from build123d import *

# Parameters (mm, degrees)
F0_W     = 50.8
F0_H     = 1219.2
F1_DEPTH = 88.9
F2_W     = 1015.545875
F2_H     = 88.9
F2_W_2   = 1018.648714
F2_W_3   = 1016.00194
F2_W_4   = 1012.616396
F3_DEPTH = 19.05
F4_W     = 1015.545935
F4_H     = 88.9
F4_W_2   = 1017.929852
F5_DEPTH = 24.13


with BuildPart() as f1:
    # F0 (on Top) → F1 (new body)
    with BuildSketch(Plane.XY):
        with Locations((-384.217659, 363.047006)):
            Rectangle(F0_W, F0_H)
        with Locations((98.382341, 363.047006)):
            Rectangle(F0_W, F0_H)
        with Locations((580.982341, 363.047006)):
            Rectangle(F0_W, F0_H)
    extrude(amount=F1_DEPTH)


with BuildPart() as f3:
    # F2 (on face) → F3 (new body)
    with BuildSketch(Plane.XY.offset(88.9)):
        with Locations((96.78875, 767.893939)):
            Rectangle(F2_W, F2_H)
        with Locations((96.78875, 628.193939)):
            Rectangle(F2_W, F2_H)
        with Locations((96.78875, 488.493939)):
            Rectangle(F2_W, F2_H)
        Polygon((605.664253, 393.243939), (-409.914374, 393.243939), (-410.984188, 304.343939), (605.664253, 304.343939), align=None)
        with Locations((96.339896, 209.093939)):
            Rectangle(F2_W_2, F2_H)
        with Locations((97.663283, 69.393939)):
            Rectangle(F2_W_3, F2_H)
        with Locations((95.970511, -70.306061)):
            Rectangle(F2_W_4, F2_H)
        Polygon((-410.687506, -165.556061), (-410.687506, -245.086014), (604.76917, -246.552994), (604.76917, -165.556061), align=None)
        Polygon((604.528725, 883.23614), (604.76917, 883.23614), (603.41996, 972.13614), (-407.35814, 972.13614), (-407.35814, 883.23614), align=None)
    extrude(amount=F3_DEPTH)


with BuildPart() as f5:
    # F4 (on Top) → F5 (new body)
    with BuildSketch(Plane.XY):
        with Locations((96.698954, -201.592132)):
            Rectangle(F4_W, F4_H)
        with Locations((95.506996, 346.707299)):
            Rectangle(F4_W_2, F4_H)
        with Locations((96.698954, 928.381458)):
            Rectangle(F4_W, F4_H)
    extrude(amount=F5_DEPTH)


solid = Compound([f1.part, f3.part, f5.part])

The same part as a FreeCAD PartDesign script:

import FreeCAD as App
import Part
import Sketcher

V = App.Vector
Q = App.Units.Quantity


def add_polygon(sketch, points):
    """Adds a closed chain of lines whose ends are joined by coincident constraints."""
    first, n = sketch.GeometryCount, len(points)
    for a, b in zip(points, points[1:] + points[:1]):
        sketch.addGeometry(Part.LineSegment(App.Vector(*a, 0), App.Vector(*b, 0)), False)
    for i in range(n):
        sketch.addConstraint(Sketcher.Constraint("Coincident", first + i, 2, first + (i + 1) % n, 1))

doc = App.newDocument("Part")
params = doc.addObject("Spreadsheet::Sheet", "Params")
for row, (alias, value) in enumerate([
    ("sketch1_width", "2 in"),
    ("sketch1_height", "48 in"),
    ("pad1_length", "3.5 in"),
    ("sketch2_height", "3.5 in"),
    ("pad2_length", "0.75 in"),
    ("sketch3_height", "3.5 in"),
    ("pad3_length", "0.95 in"),
], start=1):
    params.set(f"A{row}", alias)
    params.set(f"B{row}", "=" + value)
    params.setAlias(f"B{row}", alias)

body = doc.addObject("PartDesign::Body", "Body")
body.AllowCompound = True

sketch1 = doc.addObject("Sketcher::SketchObject", "Sketch")
body.addObject(sketch1)
sketch1.AttachmentSupport = (doc.XY_Plane, [""])
sketch1.MapMode = "FlatFace"
add_polygon(sketch1, [(-409.617659, 972.647006), (-409.617659, -246.552994), (-358.817659, -246.552994), (-358.817659, 972.647006)])
add_polygon(sketch1, [(72.982341, 972.647006), (72.982341, -246.552994), (123.782341, -246.552994), (123.782341, 972.647006)])
add_polygon(sketch1, [(555.582341, 972.647006), (555.582341, -246.552994), (606.382341, -246.552994), (606.382341, 972.647006)])
sketch1.addConstraint([
    Sketcher.Constraint("Vertical", 0),
    Sketcher.Constraint("Horizontal", 1),
    Sketcher.Constraint("Vertical", 2),
    Sketcher.Constraint("Horizontal", 3),
    Sketcher.Constraint("Vertical", 4),
    Sketcher.Constraint("Horizontal", 5),
    Sketcher.Constraint("Vertical", 6),
    Sketcher.Constraint("Horizontal", 7),
    Sketcher.Constraint("Vertical", 8),
    Sketcher.Constraint("Horizontal", 9),
    Sketcher.Constraint("Vertical", 10),
    Sketcher.Constraint("Horizontal", 11),
    Sketcher.Constraint("Horizontal", 1, 2, 4, 2),
    Sketcher.Constraint("Horizontal", 3, 2, 6, 2),
    Sketcher.Constraint("Horizontal", 5, 2, 8, 2),
    Sketcher.Constraint("Horizontal", 7, 2, 10, 2),
    Sketcher.Constraint("Equal", 3, 5),
    Sketcher.Constraint("Equal", 7, 9),
    Sketcher.Constraint("DistanceX", 1, 1, 1, 2, Q("2 in")),
    Sketcher.Constraint("DistanceY", 0, 2, 0, 1, Q("48 in")),
    Sketcher.Constraint("DistanceX", 1, 2, 4, 2, Q("17 in")),
    Sketcher.Constraint("DistanceX", 5, 2, 8, 2, Q("17 in")),
    Sketcher.Constraint("DistanceX", 0, 2, -1, 1, 409.617659),
    Sketcher.Constraint("DistanceY", 0, 2, -1, 1, 246.552994),
])
sketch1.setExpression("Constraints[30]", "Params.sketch1_width")
sketch1.setExpression("Constraints[31]", "Params.sketch1_height")
pad1 = doc.addObject("PartDesign::Pad", "Pad")
body.addObject(pad1)
pad1.Profile = sketch1
pad1.setExpression("Length", "Params.pad1_length")
body2 = doc.addObject("PartDesign::Body", "Body001")
body2.AllowCompound = True

sketch2 = doc.addObject("Sketcher::SketchObject", "Sketch001")
body2.addObject(sketch2)
sketch2.AttachmentSupport = (doc.getObject("XY_Plane001"), [""])
sketch2.MapMode = "FlatFace"
sketch2.AttachmentOffset = App.Placement(V(0, 0, 3.5 * 25.4), App.Rotation())
add_polygon(sketch2, [(-410.984188, 812.343939), (-410.984188, 723.443939), (604.561687, 723.443939), (604.561687, 812.343939)])
add_polygon(sketch2, [(-410.984188, 672.643939), (-410.984188, 583.743939), (604.561687, 583.743939), (604.561687, 672.643939)])
add_polygon(sketch2, [(-410.984188, 532.943939), (-410.984188, 444.043939), (604.561687, 444.043939), (604.561687, 532.943939)])
add_polygon(sketch2, [(605.664253, 393.243939), (-409.914374, 393.243939), (-410.984188, 304.343939), (605.664253, 304.343939)])
add_polygon(sketch2, [(-412.984461, 253.543939), (-412.984461, 164.643939), (605.664253, 164.643939), (605.664253, 253.543939)])
add_polygon(sketch2, [(-410.337687, 113.843939), (-410.337687, 24.943939), (605.664253, 24.943939), (605.664253, 113.843939)])
add_polygon(sketch2, [(-410.337687, -25.856061), (-410.337687, -114.756061), (602.278709, -114.756061), (602.278709, -25.856061)])
add_polygon(sketch2, [(-410.687506, -165.556061), (-410.687506, -245.086014), (604.76917, -246.552994), (604.76917, -165.556061)])
add_polygon(sketch2, [(604.76917, 883.23614), (603.41996, 972.13614), (-407.35814, 972.13614), (-407.35814, 883.23614)])
sketch2.addConstraint([
    Sketcher.Constraint("Vertical", 0),
    Sketcher.Constraint("Horizontal", 1),
    Sketcher.Constraint("Vertical", 2),
    Sketcher.Constraint("Horizontal", 3),
    Sketcher.Constraint("Vertical", 4),
    Sketcher.Constraint("Horizontal", 5),
    Sketcher.Constraint("Vertical", 6),
    Sketcher.Constraint("Horizontal", 7),
    Sketcher.Constraint("Vertical", 8),
    Sketcher.Constraint("Horizontal", 9),
    Sketcher.Constraint("Vertical", 10),
    Sketcher.Constraint("Horizontal", 11),
    Sketcher.Constraint("Horizontal", 12),
    Sketcher.Constraint("Horizontal", 14),
    Sketcher.Constraint("Vertical", 15),
    Sketcher.Constraint("Vertical", 16),
    Sketcher.Constraint("Horizontal", 17),
    Sketcher.Constraint("Vertical", 18),
    Sketcher.Constraint("Horizontal", 19),
    Sketcher.Constraint("Vertical", 20),
    Sketcher.Constraint("Horizontal", 21),
    Sketcher.Constraint("Vertical", 22),
    Sketcher.Constraint("Horizontal", 23),
    Sketcher.Constraint("Vertical", 24),
    Sketcher.Constraint("Horizontal", 25),
    Sketcher.Constraint("Vertical", 26),
    Sketcher.Constraint("Horizontal", 27),
    Sketcher.Constraint("Vertical", 28),
    Sketcher.Constraint("Vertical", 30),
    Sketcher.Constraint("Horizontal", 31),
    Sketcher.Constraint("Horizontal", 33),
    Sketcher.Constraint("Vertical", 34),
    Sketcher.Constraint("Horizontal", 35),
    Sketcher.Constraint("Vertical", 3, 2, 4, 2),
    Sketcher.Constraint("Vertical", 2, 2, 5, 2),
    Sketcher.Constraint("Vertical", 7, 2, 8, 2),
    Sketcher.Constraint("Vertical", 6, 2, 9, 2),
    Sketcher.Constraint("Vertical", 11, 2, 13, 2),
    Sketcher.Constraint("Vertical", 15, 2, 17, 2),
    Sketcher.Constraint("Vertical", 18, 2, 21, 2),
    Sketcher.Constraint("Vertical", 23, 2, 24, 2),
    Sketcher.Constraint("Vertical", 30, 2, 35, 2),
    Sketcher.Constraint("Equal", 2, 4),
    Sketcher.Constraint("Equal", 6, 8),
    Sketcher.Constraint("Equal", 10, 15),
    Sketcher.Constraint("Equal", 15, 16),
    Sketcher.Constraint("Equal", 18, 20),
    Sketcher.Constraint("Equal", 22, 24),
    Sketcher.Constraint("Equal", 26, 34),
    Sketcher.Constraint("DistanceY", 0, 2, 0, 1, Q("3.5 in")),
    Sketcher.Constraint("DistanceY", 4, 2, 3, 2, Q("9 in")),
    Sketcher.Constraint("DistanceY", 8, 2, 7, 2, Q("9 in")),
    Sketcher.Constraint("DistanceY", 12, 2, 8, 2, Q("2 in")),
    Sketcher.Constraint("DistanceY", 16, 2, 12, 2, Q("9 in")),
    Sketcher.Constraint("DistanceY", 20, 2, 19, 2, Q("9 in")),
    Sketcher.Constraint("DistanceY", 24, 2, 23, 2, Q("9 in")),
    Sketcher.Constraint("DistanceY", 30, 2, 25, 2, Q("2 in")),
    Sketcher.Constraint("DistanceX", 33, 2, 33, 1, 1010.7781),
    Sketcher.Constraint("DistanceX", 14, 1, 14, 2, 1016.648441),
    Sketcher.Constraint("DistanceX", 21, 1, 21, 2, 1016.00194),
    Sketcher.Constraint("DistanceX", 35, 1, 35, 2, 1012.12731),
    Sketcher.Constraint("DistanceY", 2, 2, 32, 2, 159.792201),
    Sketcher.Constraint("DistanceX", 1, 1, 1, 2, 1015.545875),
    Sketcher.Constraint("DistanceX", 12, 2, 12, 1, 1015.578627),
    Sketcher.Constraint("DistanceX", 17, 1, 17, 2, 1018.648714),
    Sketcher.Constraint("DistanceX", 25, 1, 25, 2, 1012.616396),
    Sketcher.Constraint("DistanceX", 31, 2, 31, 1, 1015.456676),
    Sketcher.Constraint("DistanceY", 28, 2, 28, 1, 79.529953),
    Sketcher.Constraint("DistanceY", 30, 1, 30, 2, 80.996933),
    Sketcher.Constraint("DistanceY", -1, 1, 0, 2, 723.443939),
    Sketcher.Constraint("DistanceX", 13, 2, -1, 1, 410.984188),
    Sketcher.Constraint("DistanceX", -1, 1, 29, 2, 604.76917),
])
sketch2.setExpression("Constraints[85]", "Params.sketch2_height")
pad2 = doc.addObject("PartDesign::Pad", "Pad001")
body2.addObject(pad2)
pad2.Profile = sketch2
pad2.setExpression("Length", "Params.pad2_length")
body3 = doc.addObject("PartDesign::Body", "Body002")
body3.AllowCompound = True

sketch3 = doc.addObject("Sketcher::SketchObject", "Sketch002")
body3.addObject(sketch3)
sketch3.AttachmentSupport = (doc.getObject("XY_Plane002"), [""])
sketch3.MapMode = "FlatFace"
add_polygon(sketch3, [(-411.074013, -157.142132), (-411.074013, -246.042132), (604.471922, -246.042132), (604.471922, -157.142132)])
add_polygon(sketch3, [(-413.45793, 391.157299), (-413.45793, 302.257299), (604.471922, 302.257299), (604.471922, 391.157299)])
add_polygon(sketch3, [(-411.074013, 972.831458), (-411.074013, 883.931458), (604.471922, 883.931458), (604.471922, 972.831458)])
sketch3.addConstraint([
    Sketcher.Constraint("Vertical", 0),
    Sketcher.Constraint("Horizontal", 1),
    Sketcher.Constraint("Vertical", 2),
    Sketcher.Constraint("Horizontal", 3),
    Sketcher.Constraint("Vertical", 4),
    Sketcher.Constraint("Horizontal", 5),
    Sketcher.Constraint("Vertical", 6),
    Sketcher.Constraint("Horizontal", 7),
    Sketcher.Constraint("Vertical", 8),
    Sketcher.Constraint("Horizontal", 9),
    Sketcher.Constraint("Vertical", 10),
    Sketcher.Constraint("Horizontal", 11),
    Sketcher.Constraint("Vertical", 2, 2, 5, 2),
    Sketcher.Constraint("Vertical", 3, 2, 8, 2),
    Sketcher.Constraint("Vertical", 6, 2, 9, 2),
    Sketcher.Constraint("Equal", 2, 4),
    Sketcher.Constraint("Equal", 6, 8),
    Sketcher.Constraint("DistanceY", 0, 2, 0, 1, Q("3.5 in")),
    Sketcher.Constraint("DistanceX", 5, 1, 5, 2, 1017.929852),
    Sketcher.Constraint("DistanceY", -1, 1, 4, 2, 302.257299),
    Sketcher.Constraint("DistanceX", 1, 1, 1, 2, 1015.545935),
    Sketcher.Constraint("DistanceX", -1, 1, 1, 2, 604.471922),
    Sketcher.Constraint("DistanceY", 2, 2, -1, 1, 157.142132),
    Sketcher.Constraint("DistanceY", -1, 1, 8, 2, 883.931458),
])
sketch3.setExpression("Constraints[29]", "Params.sketch3_height")
pad3 = doc.addObject("PartDesign::Pad", "Pad002")
body3.addObject(pad3)
pad3.Profile = sketch3
pad3.setExpression("Length", "Params.pad3_length")

doc.recompute()
